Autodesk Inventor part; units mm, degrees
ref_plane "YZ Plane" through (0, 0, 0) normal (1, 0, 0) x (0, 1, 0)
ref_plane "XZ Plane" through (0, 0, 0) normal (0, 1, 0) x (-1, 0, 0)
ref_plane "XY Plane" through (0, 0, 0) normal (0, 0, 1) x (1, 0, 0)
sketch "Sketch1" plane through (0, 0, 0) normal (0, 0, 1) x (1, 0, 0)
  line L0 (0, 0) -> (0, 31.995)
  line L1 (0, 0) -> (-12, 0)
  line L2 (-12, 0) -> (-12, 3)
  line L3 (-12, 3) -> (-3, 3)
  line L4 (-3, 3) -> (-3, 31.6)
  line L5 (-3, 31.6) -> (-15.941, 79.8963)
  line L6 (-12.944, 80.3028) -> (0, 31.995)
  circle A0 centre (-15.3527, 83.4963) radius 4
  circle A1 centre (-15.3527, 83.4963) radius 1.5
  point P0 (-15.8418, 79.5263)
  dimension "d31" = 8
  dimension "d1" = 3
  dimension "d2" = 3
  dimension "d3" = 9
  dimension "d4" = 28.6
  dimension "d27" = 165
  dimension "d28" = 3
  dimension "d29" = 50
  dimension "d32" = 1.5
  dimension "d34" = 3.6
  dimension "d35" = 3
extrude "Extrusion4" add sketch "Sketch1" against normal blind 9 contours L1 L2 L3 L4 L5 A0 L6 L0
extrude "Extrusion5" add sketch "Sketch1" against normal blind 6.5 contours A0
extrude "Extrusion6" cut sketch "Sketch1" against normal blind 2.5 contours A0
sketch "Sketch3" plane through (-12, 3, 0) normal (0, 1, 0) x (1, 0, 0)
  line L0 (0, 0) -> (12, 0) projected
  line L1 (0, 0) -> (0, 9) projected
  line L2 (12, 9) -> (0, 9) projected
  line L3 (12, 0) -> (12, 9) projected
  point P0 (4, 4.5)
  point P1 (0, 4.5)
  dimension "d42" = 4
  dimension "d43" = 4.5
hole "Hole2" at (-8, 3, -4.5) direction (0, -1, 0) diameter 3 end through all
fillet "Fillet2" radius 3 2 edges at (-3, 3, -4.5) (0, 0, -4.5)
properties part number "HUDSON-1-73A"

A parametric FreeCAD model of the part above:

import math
import FreeCAD as App
import Part
import Sketcher
Q = App.Units.Quantity


def edges_at(feature, points):
    """Names of the edges that pass closest to the given points."""
    edges = feature.Shape.Edges
    near = lambda p: min(range(len(edges)), key=lambda i: edges[i].distToShape(Part.Vertex(*p))[0])
    return sorted({f"Edge{near(p) + 1}" for p in points})

doc = App.newDocument("Part")
body = doc.addObject("PartDesign::Body", "Body")

# Sketch on XY plane
sketch1 = doc.addObject("Sketcher::SketchObject", "Sketch")
body.addObject(sketch1)
sketch1.AttachmentSupport = (doc.XY_Plane, [""])
sketch1.MapMode = "FlatFace"
sketch1.addGeometry([
    Part.LineSegment(App.Vector(-12, 0, 0), App.Vector(0, 0, 0)),  # 0
    Part.LineSegment(App.Vector(0, 0, 0), App.Vector(0, 31.995, 0)),  # 1
    Part.LineSegment(App.Vector(0, 31.995, 0), App.Vector(-12.944, 80.3028, 0)),  # 2
    Part.ArcOfCircle(Part.Circle(App.Vector(-15.3527, 83.4963, 0), App.Vector(0, 0, 1), 4), math.radians(-97.02435), math.radians(-52.974545)),  # 3
    Part.LineSegment(App.Vector(-15.841865, 79.526323, 0), App.Vector(-3, 31.6, 0)),  # 4
    Part.LineSegment(App.Vector(-3, 31.6, 0), App.Vector(-3, 3, 0)),  # 5
    Part.LineSegment(App.Vector(-3, 3, 0), App.Vector(-12, 3, 0)),  # 6
    Part.LineSegment(App.Vector(-12, 3, 0), App.Vector(-12, 0, 0)),  # 7
], False)
sketch1.addConstraint([
    Sketcher.Constraint("Coincident", 0, 2, 1, 1),
    Sketcher.Constraint("Coincident", 1, 2, 2, 1),
    Sketcher.Constraint("Coincident", 2, 2, 3, 2),
    Sketcher.Constraint("Coincident", 3, 1, 4, 1),
    Sketcher.Constraint("Coincident", 4, 2, 5, 1),
    Sketcher.Constraint("Coincident", 5, 2, 6, 1),
    Sketcher.Constraint("Coincident", 6, 2, 7, 1),
    Sketcher.Constraint("Coincident", 7, 2, 0, 1),
    Sketcher.Constraint("Horizontal", 0),
    Sketcher.Constraint("Vertical", 1),
    Sketcher.Constraint("Vertical", 5),
    Sketcher.Constraint("Horizontal", 6),
    Sketcher.Constraint("Vertical", 7),
    Sketcher.Constraint("Coincident", 0, 2, -1, 1),
    Sketcher.Constraint("Parallel", 2, 4),
    Sketcher.Constraint("Radius", 3, 4.0),
    Sketcher.Constraint("DistanceX", 6, 2, 6, 1, 9.0),
    Sketcher.Constraint("DistanceY", 7, 2, 7, 1, 3.0),
    Sketcher.Constraint("DistanceY", 5, 2, 5, 1, 28.6),
    Sketcher.Constraint("DistanceX", 4, 2, -1, 1, 3.0),
    Sketcher.Constraint("Angle", 2, Q("105 deg")),
    Sketcher.Constraint("DistanceY", 1, 1, 1, 2, 31.995),
    Sketcher.Constraint("DistanceY", 3, 1, 3, 3, 3.97),
    Sketcher.Constraint("Distance", 2, 50.012),
])
pad1 = doc.addObject("PartDesign::Pad", "Pad")
body.addObject(pad1)
pad1.Profile = sketch1
pad1.Length = 9
pad1.Reversed = True

# Sketch on XY plane
sketch2 = doc.addObject("Sketcher::SketchObject", "Sketch001")
body.addObject(sketch2)
sketch2.AttachmentSupport = (doc.XY_Plane, [""])
sketch2.MapMode = "FlatFace"
sketch2.addGeometry([
    Part.Circle(App.Vector(-15.3527, 83.4963, 0), App.Vector(0, 0, 1), 4),
    Part.Circle(App.Vector(-15.3527, 83.4963, 0), App.Vector(0, 0, 1), 1.5),
], False)
sketch2.addConstraint([
    Sketcher.Constraint("Coincident", 1, 3, 0, 3),
    Sketcher.Constraint("Diameter", 0, 8.0),
    Sketcher.Constraint("Diameter", 1, 3.0),
    Sketcher.Constraint("DistanceX", 0, 3, -1, 1, 15.3527),
    Sketcher.Constraint("DistanceY", -1, 1, 0, 3, 83.4963),
])
pad2 = doc.addObject("PartDesign::Pad", "Pad001")
body.addObject(pad2)
pad2.Profile = sketch2
pad2.Length = 6.5
pad2.Reversed = True

# Sketch on XY plane
sketch3 = doc.addObject("Sketcher::SketchObject", "Sketch002")
body.addObject(sketch3)
sketch3.AttachmentSupport = (doc.XY_Plane, [""])
sketch3.MapMode = "FlatFace"
sketch3.addGeometry([
    Part.Circle(App.Vector(-15.3527, 83.4963, 0), App.Vector(0, 0, 1), 4),
    Part.Circle(App.Vector(-15.3527, 83.4963, 0), App.Vector(0, 0, 1), 1.5),
], False)
sketch3.addConstraint([
    Sketcher.Constraint("Coincident", 1, 3, 0, 3),
    Sketcher.Constraint("Diameter", 0, 8.0),
    Sketcher.Constraint("Diameter", 1, 3.0),
    Sketcher.Constraint("DistanceX", 0, 3, -1, 1, 15.3527),
    Sketcher.Constraint("DistanceY", -1, 1, 0, 3, 83.4963),
])
pocket1 = doc.addObject("PartDesign::Pocket", "Pocket")
body.addObject(pocket1)
pocket1.Profile = sketch3
pocket1.Length = 2.5

# Sketch on XZ plane
sketch4 = doc.addObject("Sketcher::SketchObject", "Sketch003")
body.addObject(sketch4)
sketch4.AttachmentSupport = (doc.XZ_Plane, [""])
sketch4.MapMode = "FlatFace"
sketch4.AttachmentOffset = App.Placement(App.Vector(0, 0, -3), App.Rotation())
sketch4.addGeometry(Part.Circle(App.Vector(-8, -4.5, 0), App.Vector(0, 0, 1), 1.5), False)
sketch4.addConstraint([
    Sketcher.Constraint("Diameter", 0, 3.0),
    Sketcher.Constraint("DistanceX", 0, 3, -1, 1, 8.0),
    Sketcher.Constraint("DistanceY", 0, 3, -1, 1, 4.5),
])
doc.recompute()
hole = doc.addObject("PartDesign::Hole", "Hole")
body.addObject(hole)
hole.Profile = sketch4
hole.ThreadType = "None"
hole.Diameter = 3
hole.DepthType = "ThroughAll"
hole.Reversed = True
doc.recompute()

fillet = doc.addObject("PartDesign::Fillet", "Fillet")
body.addObject(fillet)
fillet.Base = (hole, edges_at(hole, [(-3, 3, -4.5), (0, 0, -4.5)]))
fillet.Radius = 3

doc.recompute()
